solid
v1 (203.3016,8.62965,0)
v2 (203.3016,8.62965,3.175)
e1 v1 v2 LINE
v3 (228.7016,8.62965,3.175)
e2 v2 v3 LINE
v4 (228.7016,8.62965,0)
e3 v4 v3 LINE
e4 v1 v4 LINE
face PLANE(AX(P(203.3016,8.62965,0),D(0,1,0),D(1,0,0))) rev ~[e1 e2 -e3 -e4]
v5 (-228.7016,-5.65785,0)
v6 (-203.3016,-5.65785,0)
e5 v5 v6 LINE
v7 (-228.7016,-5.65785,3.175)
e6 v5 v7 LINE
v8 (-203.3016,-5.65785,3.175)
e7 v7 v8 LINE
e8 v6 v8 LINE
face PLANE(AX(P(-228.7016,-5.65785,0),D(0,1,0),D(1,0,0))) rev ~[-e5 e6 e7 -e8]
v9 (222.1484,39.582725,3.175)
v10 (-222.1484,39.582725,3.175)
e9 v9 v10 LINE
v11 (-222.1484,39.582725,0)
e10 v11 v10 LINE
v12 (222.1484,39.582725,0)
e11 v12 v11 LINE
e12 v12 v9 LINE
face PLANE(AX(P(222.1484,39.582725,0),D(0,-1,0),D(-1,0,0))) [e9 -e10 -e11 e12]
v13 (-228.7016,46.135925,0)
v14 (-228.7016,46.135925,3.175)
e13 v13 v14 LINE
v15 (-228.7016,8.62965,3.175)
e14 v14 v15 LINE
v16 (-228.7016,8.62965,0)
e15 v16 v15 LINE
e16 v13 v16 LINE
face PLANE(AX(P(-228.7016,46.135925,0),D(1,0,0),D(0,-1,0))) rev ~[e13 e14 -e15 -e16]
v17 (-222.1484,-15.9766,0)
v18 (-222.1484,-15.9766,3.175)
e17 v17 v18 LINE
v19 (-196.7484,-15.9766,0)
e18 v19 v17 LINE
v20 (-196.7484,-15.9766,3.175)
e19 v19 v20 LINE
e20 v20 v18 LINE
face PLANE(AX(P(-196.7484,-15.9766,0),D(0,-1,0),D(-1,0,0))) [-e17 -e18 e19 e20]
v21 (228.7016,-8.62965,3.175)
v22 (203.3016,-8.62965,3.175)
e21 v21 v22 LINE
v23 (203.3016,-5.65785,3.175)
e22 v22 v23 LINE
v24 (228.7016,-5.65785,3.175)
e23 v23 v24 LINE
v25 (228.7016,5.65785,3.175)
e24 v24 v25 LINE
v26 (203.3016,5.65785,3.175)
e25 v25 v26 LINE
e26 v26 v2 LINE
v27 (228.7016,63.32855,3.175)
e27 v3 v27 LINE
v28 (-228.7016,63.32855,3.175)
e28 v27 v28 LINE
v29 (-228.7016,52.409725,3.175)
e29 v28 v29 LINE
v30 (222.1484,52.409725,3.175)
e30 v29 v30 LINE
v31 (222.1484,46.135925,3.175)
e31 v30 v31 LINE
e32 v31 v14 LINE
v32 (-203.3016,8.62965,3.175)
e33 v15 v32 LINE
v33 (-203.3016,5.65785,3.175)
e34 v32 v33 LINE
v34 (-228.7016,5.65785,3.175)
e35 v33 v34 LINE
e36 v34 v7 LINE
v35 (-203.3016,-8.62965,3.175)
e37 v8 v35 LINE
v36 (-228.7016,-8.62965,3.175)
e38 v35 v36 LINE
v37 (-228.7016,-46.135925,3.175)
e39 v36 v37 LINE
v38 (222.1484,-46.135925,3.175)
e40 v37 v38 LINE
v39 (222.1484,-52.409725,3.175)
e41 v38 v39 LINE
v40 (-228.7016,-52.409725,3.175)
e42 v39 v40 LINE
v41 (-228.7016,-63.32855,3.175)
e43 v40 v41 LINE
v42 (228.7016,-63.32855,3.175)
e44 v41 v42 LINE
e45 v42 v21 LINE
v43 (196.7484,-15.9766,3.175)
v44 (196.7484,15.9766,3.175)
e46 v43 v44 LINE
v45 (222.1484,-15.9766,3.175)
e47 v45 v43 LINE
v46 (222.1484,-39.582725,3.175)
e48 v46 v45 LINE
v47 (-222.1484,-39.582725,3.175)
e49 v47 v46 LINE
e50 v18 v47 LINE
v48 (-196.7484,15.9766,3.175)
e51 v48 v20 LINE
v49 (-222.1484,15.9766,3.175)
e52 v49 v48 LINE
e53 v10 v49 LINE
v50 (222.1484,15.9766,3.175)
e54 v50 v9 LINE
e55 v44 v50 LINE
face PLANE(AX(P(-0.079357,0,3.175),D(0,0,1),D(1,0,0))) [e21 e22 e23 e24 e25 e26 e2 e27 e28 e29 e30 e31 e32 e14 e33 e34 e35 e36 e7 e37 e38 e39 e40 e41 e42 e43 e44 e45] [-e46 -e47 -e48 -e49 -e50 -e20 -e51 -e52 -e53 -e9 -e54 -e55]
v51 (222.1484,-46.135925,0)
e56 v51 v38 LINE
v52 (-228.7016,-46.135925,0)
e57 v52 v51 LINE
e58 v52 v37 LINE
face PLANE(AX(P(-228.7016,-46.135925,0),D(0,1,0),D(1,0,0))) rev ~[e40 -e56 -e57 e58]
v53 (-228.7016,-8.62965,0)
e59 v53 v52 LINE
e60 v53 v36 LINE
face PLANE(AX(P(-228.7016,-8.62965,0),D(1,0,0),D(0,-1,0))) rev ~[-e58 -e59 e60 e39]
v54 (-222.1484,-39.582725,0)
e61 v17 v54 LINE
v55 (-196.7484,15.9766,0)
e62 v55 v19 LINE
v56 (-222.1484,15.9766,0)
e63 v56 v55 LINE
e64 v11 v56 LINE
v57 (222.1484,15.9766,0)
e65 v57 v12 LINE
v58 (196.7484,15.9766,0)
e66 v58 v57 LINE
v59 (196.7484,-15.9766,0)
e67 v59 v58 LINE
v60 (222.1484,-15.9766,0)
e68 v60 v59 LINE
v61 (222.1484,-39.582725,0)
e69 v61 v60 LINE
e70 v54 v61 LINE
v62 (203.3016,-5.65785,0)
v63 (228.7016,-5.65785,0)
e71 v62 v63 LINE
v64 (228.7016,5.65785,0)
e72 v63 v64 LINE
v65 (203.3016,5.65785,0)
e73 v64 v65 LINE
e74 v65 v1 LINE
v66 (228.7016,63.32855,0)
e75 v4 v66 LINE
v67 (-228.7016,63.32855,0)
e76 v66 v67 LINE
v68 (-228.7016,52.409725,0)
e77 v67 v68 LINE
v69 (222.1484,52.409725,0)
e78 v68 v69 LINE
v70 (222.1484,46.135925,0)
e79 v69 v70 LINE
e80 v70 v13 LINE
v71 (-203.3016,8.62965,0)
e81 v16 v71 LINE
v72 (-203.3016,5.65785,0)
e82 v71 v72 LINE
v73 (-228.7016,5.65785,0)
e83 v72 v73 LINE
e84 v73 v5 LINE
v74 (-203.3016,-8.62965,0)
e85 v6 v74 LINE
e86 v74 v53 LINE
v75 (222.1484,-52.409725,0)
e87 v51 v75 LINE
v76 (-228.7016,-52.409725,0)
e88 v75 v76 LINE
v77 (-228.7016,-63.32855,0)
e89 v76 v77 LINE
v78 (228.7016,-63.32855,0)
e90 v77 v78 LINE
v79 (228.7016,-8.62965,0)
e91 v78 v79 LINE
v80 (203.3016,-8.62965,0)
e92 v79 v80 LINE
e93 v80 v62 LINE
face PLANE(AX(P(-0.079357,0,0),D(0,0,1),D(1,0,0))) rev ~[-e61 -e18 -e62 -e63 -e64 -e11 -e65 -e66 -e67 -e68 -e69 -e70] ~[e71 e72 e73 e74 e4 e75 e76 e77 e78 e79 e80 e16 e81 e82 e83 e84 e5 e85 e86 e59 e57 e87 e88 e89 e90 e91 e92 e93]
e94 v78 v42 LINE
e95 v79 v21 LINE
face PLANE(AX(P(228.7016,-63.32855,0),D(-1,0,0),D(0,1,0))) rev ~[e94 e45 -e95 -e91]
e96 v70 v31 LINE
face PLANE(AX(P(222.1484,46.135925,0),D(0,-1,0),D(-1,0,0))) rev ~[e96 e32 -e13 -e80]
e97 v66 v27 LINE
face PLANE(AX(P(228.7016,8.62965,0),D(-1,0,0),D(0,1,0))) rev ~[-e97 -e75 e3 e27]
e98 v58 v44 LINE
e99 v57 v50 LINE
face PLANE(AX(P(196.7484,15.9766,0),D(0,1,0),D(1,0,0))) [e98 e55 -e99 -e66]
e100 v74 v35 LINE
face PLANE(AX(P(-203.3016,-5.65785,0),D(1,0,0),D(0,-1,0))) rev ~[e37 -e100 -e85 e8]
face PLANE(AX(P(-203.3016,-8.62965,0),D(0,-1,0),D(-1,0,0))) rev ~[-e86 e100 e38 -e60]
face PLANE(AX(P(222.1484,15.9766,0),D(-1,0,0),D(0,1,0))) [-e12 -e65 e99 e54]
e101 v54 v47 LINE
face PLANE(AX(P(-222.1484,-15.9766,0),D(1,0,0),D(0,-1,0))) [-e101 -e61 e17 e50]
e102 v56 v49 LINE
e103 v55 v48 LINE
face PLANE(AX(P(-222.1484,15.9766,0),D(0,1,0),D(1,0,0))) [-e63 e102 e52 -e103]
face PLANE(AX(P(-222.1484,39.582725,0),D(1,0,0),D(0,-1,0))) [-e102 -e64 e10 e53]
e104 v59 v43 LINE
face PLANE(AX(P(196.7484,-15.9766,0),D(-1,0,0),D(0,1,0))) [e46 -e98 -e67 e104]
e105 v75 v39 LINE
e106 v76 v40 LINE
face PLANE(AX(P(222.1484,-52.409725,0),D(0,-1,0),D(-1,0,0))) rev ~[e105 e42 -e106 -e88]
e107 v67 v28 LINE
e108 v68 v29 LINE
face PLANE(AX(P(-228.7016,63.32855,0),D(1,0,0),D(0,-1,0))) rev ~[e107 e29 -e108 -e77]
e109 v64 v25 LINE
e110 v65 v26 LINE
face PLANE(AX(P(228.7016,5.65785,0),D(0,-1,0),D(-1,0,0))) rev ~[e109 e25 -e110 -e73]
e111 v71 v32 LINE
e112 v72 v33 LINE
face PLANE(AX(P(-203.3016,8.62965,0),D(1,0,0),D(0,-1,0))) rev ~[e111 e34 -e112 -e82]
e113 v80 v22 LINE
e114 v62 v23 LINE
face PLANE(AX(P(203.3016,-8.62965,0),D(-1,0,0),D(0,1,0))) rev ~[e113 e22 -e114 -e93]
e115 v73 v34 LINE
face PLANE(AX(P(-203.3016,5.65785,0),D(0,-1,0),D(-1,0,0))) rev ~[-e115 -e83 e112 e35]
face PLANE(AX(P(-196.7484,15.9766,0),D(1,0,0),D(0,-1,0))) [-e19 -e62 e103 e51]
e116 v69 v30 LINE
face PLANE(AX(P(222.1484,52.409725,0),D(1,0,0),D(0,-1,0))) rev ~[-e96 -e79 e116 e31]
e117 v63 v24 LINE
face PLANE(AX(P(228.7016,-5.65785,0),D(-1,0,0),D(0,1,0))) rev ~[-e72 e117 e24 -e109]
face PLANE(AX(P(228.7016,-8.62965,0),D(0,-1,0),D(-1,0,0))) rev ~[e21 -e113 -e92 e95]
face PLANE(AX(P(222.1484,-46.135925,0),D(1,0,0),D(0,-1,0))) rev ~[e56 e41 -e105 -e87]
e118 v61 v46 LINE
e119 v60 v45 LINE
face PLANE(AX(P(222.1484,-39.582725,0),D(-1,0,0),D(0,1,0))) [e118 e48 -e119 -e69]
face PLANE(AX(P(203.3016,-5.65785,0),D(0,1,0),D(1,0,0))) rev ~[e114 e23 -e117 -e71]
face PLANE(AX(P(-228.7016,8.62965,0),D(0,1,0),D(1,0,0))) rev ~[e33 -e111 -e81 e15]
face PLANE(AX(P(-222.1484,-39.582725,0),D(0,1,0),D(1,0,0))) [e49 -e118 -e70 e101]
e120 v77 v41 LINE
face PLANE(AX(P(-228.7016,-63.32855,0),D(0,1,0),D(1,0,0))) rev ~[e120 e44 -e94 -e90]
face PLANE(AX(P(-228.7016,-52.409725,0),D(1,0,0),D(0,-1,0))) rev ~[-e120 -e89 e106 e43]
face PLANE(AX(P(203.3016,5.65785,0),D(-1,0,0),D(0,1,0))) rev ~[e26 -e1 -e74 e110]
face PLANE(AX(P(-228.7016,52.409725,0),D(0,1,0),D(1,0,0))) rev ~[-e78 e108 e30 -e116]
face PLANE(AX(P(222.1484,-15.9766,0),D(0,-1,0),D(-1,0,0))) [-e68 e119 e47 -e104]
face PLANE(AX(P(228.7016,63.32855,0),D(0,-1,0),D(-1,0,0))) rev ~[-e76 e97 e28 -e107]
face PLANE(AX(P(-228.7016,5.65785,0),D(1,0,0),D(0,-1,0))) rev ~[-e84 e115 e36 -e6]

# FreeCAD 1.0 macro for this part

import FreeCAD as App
import Part
import Sketcher

V = App.Vector
Q = App.Units.Quantity

doc = App.newDocument("Part")
params = doc.addObject("Spreadsheet::Sheet", "Params")
for row, (alias, value) in enumerate([
    ("sketch1_width", "1 in"),
    ("sketch1_width2", "17.75 in"),
    ("sketch1_width3", "18.008 in"),
    ("sketch1_height", "0.247 in"),
    ("sketch1_height2", "0.117 in"),
    ("pad1_length", "0.125 in"),
], start=1):
    params.set(f"A{row}", alias)
    params.set(f"B{row}", "=" + value)
    params.setAlias(f"B{row}", alias)

body = doc.addObject("PartDesign::Body", "Body")

sketch1 = body.newObject("Sketcher::SketchObject", "Sketch")
sketch1.AttachmentSupport = (doc.getObject("XY_Plane"), [""])
sketch1.MapMode = "FlatFace"
sketch1.addGeometry(Part.LineSegment(V(-203.3, -8.6, 0), V(-228.7, -8.6, 0)), False)
sketch1.addGeometry(Part.LineSegment(V(-228.7, -8.6, 0), V(-228.7, -46.1, 0)), False)
sketch1.addGeometry(Part.LineSegment(V(-228.7, -46.1, 0), V(222.1, -46.1, 0)), False)
sketch1.addGeometry(Part.LineSegment(V(222.1, -46.1, 0), V(222.1, -52.4, 0)), False)
sketch1.addGeometry(Part.LineSegment(V(222.1, -52.4, 0), V(-228.7, -52.4, 0)), False)
sketch1.addGeometry(Part.LineSegment(V(-228.7, -52.4, 0), V(-228.7, -63.3, 0)), False)
sketch1.addGeometry(Part.LineSegment(V(-228.7, -63.3, 0), V(228.7, -63.3, 0)), False)
sketch1.addGeometry(Part.LineSegment(V(228.7, -63.3, 0), V(228.7, -8.6, 0)), False)
sketch1.addGeometry(Part.LineSegment(V(228.7, -8.6, 0), V(203.3, -8.6, 0)), False)
sketch1.addGeometry(Part.LineSegment(V(203.3, -8.6, 0), V(203.3, -5.7, 0)), False)
sketch1.addGeometry(Part.LineSegment(V(203.3, -5.7, 0), V(228.7, -5.7, 0)), False)
sketch1.addGeometry(Part.LineSegment(V(228.7, -5.7, 0), V(228.7, 5.7, 0)), False)
sketch1.addGeometry(Part.LineSegment(V(228.7, 5.7, 0), V(203.3, 5.7, 0)), False)
sketch1.addGeometry(Part.LineSegment(V(203.3, 5.7, 0), V(203.3, 8.6, 0)), False)
sketch1.addGeometry(Part.LineSegment(V(203.3, 8.6, 0), V(228.7, 8.6, 0)), False)
sketch1.addGeometry(Part.LineSegment(V(228.7, 8.6, 0), V(228.7, 63.3, 0)), False)
sketch1.addGeometry(Part.LineSegment(V(228.7, 63.3, 0), V(-228.7, 63.3, 0)), False)
sketch1.addGeometry(Part.LineSegment(V(-228.7, 63.3, 0), V(-228.7, 52.4, 0)), False)
sketch1.addGeometry(Part.LineSegment(V(-228.7, 52.4, 0), V(222.1, 52.4, 0)), False)
sketch1.addGeometry(Part.LineSegment(V(222.1, 52.4, 0), V(222.1, 46.1, 0)), False)
sketch1.addGeometry(Part.LineSegment(V(222.1, 46.1, 0), V(-228.7, 46.1, 0)), False)
sketch1.addGeometry(Part.LineSegment(V(-228.7, 46.1, 0), V(-228.7, 8.6, 0)), False)
sketch1.addGeometry(Part.LineSegment(V(-228.7, 8.6, 0), V(-203.3, 8.6, 0)), False)
sketch1.addGeometry(Part.LineSegment(V(-203.3, 8.6, 0), V(-203.3, 5.7, 0)), False)
sketch1.addGeometry(Part.LineSegment(V(-203.3, 5.7, 0), V(-228.7, 5.7, 0)), False)
sketch1.addGeometry(Part.LineSegment(V(-228.7, 5.7, 0), V(-228.7, -5.7, 0)), False)
sketch1.addGeometry(Part.LineSegment(V(-228.7, -5.7, 0), V(-203.3, -5.7, 0)), False)
sketch1.addGeometry(Part.LineSegment(V(-203.3, -5.7, 0), V(-203.3, -8.6, 0)), False)
sketch1.addGeometry(Part.LineSegment(V(222.1, -16, 0), V(222.1, -39.6, 0)), False)
sketch1.addGeometry(Part.LineSegment(V(222.1, -39.6, 0), V(-222.1, -39.6, 0)), False)
sketch1.addGeometry(Part.LineSegment(V(-222.1, -39.6, 0), V(-222.1, -16, 0)), False)
sketch1.addGeometry(Part.LineSegment(V(-222.1, -16, 0), V(-196.7, -16, 0)), False)
sketch1.addGeometry(Part.LineSegment(V(-196.7, -16, 0), V(-196.7, 16, 0)), False)
sketch1.addGeometry(Part.LineSegment(V(-196.7, 16, 0), V(-222.1, 16, 0)), False)
sketch1.addGeometry(Part.LineSegment(V(-222.1, 16, 0), V(-222.1, 39.6, 0)), False)
sketch1.addGeometry(Part.LineSegment(V(-222.1, 39.6, 0), V(222.1, 39.6, 0)), False)
sketch1.addGeometry(Part.LineSegment(V(222.1, 39.6, 0), V(222.1, 16, 0)), False)
sketch1.addGeometry(Part.LineSegment(V(222.1, 16, 0), V(196.7, 16, 0)), False)
sketch1.addGeometry(Part.LineSegment(V(196.7, 16, 0), V(196.7, -16, 0)), False)
sketch1.addGeometry(Part.LineSegment(V(196.7, -16, 0), V(222.1, -16, 0)), False)
sketch1.addConstraint(Sketcher.Constraint("Coincident", 0, 2, 1, 1))
sketch1.addConstraint(Sketcher.Constraint("Coincident", 1, 2, 2, 1))
sketch1.addConstraint(Sketcher.Constraint("Coincident", 2, 2, 3, 1))
sketch1.addConstraint(Sketcher.Constraint("Coincident", 3, 2, 4, 1))
sketch1.addConstraint(Sketcher.Constraint("Coincident", 4, 2, 5, 1))
sketch1.addConstraint(Sketcher.Constraint("Coincident", 5, 2, 6, 1))
sketch1.addConstraint(Sketcher.Constraint("Coincident", 6, 2, 7, 1))
sketch1.addConstraint(Sketcher.Constraint("Coincident", 7, 2, 8, 1))
sketch1.addConstraint(Sketcher.Constraint("Coincident", 8, 2, 9, 1))
sketch1.addConstraint(Sketcher.Constraint("Coincident", 9, 2, 10, 1))
sketch1.addConstraint(Sketcher.Constraint("Coincident", 10, 2, 11, 1))
sketch1.addConstraint(Sketcher.Constraint("Coincident", 11, 2, 12, 1))
sketch1.addConstraint(Sketcher.Constraint("Coincident", 12, 2, 13, 1))
sketch1.addConstraint(Sketcher.Constraint("Coincident", 13, 2, 14, 1))
sketch1.addConstraint(Sketcher.Constraint("Coincident", 14, 2, 15, 1))
sketch1.addConstraint(Sketcher.Constraint("Coincident", 15, 2, 16, 1))
sketch1.addConstraint(Sketcher.Constraint("Coincident", 16, 2, 17, 1))
sketch1.addConstraint(Sketcher.Constraint("Coincident", 17, 2, 18, 1))
sketch1.addConstraint(Sketcher.Constraint("Coincident", 18, 2, 19, 1))
sketch1.addConstraint(Sketcher.Constraint("Coincident", 19, 2, 20, 1))
sketch1.addConstraint(Sketcher.Constraint("Coincident", 20, 2, 21, 1))
sketch1.addConstraint(Sketcher.Constraint("Coincident", 21, 2, 22, 1))
sketch1.addConstraint(Sketcher.Constraint("Coincident", 22, 2, 23, 1))
sketch1.addConstraint(Sketcher.Constraint("Coincident", 23, 2, 24, 1))
sketch1.addConstraint(Sketcher.Constraint("Coincident", 24, 2, 25, 1))
sketch1.addConstraint(Sketcher.Constraint("Coincident", 25, 2, 26, 1))
sketch1.addConstraint(Sketcher.Constraint("Coincident", 26, 2, 27, 1))
sketch1.addConstraint(Sketcher.Constraint("Coincident", 27, 2, 0, 1))
sketch1.addConstraint(Sketcher.Constraint("Coincident", 28, 2, 29, 1))
sketch1.addConstraint(Sketcher.Constraint("Coincident", 29, 2, 30, 1))
sketch1.addConstraint(Sketcher.Constraint("Coincident", 30, 2, 31, 1))
sketch1.addConstraint(Sketcher.Constraint("Coincident", 31, 2, 32, 1))
sketch1.addConstraint(Sketcher.Constraint("Coincident", 32, 2, 33, 1))
sketch1.addConstraint(Sketcher.Constraint("Coincident", 33, 2, 34, 1))
sketch1.addConstraint(Sketcher.Constraint("Coincident", 34, 2, 35, 1))
sketch1.addConstraint(Sketcher.Constraint("Coincident", 35, 2, 36, 1))
sketch1.addConstraint(Sketcher.Constraint("Coincident", 36, 2, 37, 1))
sketch1.addConstraint(Sketcher.Constraint("Coincident", 37, 2, 38, 1))
sketch1.addConstraint(Sketcher.Constraint("Coincident", 38, 2, 39, 1))
sketch1.addConstraint(Sketcher.Constraint("Coincident", 39, 2, 28, 1))
sketch1.addConstraint(Sketcher.Constraint("Horizontal", 0))
sketch1.addConstraint(Sketcher.Constraint("Vertical", 1))
sketch1.addConstraint(Sketcher.Constraint("Horizontal", 2))
sketch1.addConstraint(Sketcher.Constraint("Vertical", 3))
sketch1.addConstraint(Sketcher.Constraint("Horizontal", 4))
sketch1.addConstraint(Sketcher.Constraint("Vertical", 5))
sketch1.addConstraint(Sketcher.Constraint("Horizontal", 6))
sketch1.addConstraint(Sketcher.Constraint("Vertical", 7))
sketch1.addConstraint(Sketcher.Constraint("Horizontal", 8))
sketch1.addConstraint(Sketcher.Constraint("Vertical", 9))
sketch1.addConstraint(Sketcher.Constraint("Horizontal", 10))
sketch1.addConstraint(Sketcher.Constraint("Vertical", 11))
sketch1.addConstraint(Sketcher.Constraint("Horizontal", 12))
sketch1.addConstraint(Sketcher.Constraint("Vertical", 13))
sketch1.addConstraint(Sketcher.Constraint("Horizontal", 14))
sketch1.addConstraint(Sketcher.Constraint("Vertical", 15))
sketch1.addConstraint(Sketcher.Constraint("Horizontal", 16))
sketch1.addConstraint(Sketcher.Constraint("Vertical", 17))
sketch1.addConstraint(Sketcher.Constraint("Horizontal", 18))
sketch1.addConstraint(Sketcher.Constraint("Vertical", 19))
sketch1.addConstraint(Sketcher.Constraint("Horizontal", 20))
sketch1.addConstraint(Sketcher.Constraint("Vertical", 21))
sketch1.addConstraint(Sketcher.Constraint("Horizontal", 22))
sketch1.addConstraint(Sketcher.Constraint("Vertical", 23))
sketch1.addConstraint(Sketcher.Constraint("Horizontal", 24))
sketch1.addConstraint(Sketcher.Constraint("Vertical", 25))
sketch1.addConstraint(Sketcher.Constraint("Horizontal", 26))
sketch1.addConstraint(Sketcher.Constraint("Vertical", 27))
sketch1.addConstraint(Sketcher.Constraint("Vertical", 28))
sketch1.addConstraint(Sketcher.Constraint("Horizontal", 29))
sketch1.addConstraint(Sketcher.Constraint("Vertical", 30))
sketch1.addConstraint(Sketcher.Constraint("Horizontal", 31))
sketch1.addConstraint(Sketcher.Constraint("Vertical", 32))
sketch1.addConstraint(Sketcher.Constraint("Horizontal", 33))
sketch1.addConstraint(Sketcher.Constraint("Vertical", 34))
sketch1.addConstraint(Sketcher.Constraint("Horizontal", 35))
sketch1.addConstraint(Sketcher.Constraint("Vertical", 36))
sketch1.addConstraint(Sketcher.Constraint("Horizontal", 37))
sketch1.addConstraint(Sketcher.Constraint("Vertical", 38))
sketch1.addConstraint(Sketcher.Constraint("Horizontal", 39))
sketch1.addConstraint(Sketcher.Constraint("Symmetric", 0, 2, 14, 2, -1, 1))
sketch1.addConstraint(Sketcher.Constraint("Symmetric", 5, 2, 15, 2, -1, 1))
sketch1.addConstraint(Sketcher.Constraint("Symmetric", 7, 2, 21, 2, -1, 1))
sketch1.addConstraint(Sketcher.Constraint("Symmetric", 9, 2, 23, 2, -1, 1))
sketch1.addConstraint(Sketcher.Constraint("Symmetric", 11, 2, 25, 2, -1, 1))
sketch1.addConstraint(Sketcher.Constraint("Symmetric", 28, 2, 34, 2, -1, 1))
sketch1.addConstraint(Sketcher.Constraint("Symmetric", 30, 2, 36, 2, -1, 1))
sketch1.addConstraint(Sketcher.Constraint("Symmetric", 32, 2, 38, 2, -1, 1))
sketch1.addConstraint(Sketcher.Constraint("Symmetric", 0, 2, 7, 2, -2))
sketch1.addConstraint(Sketcher.Constraint("Symmetric", 12, 2, 23, 2, -2))
sketch1.addConstraint(Sketcher.Constraint("Symmetric", 33, 2, 36, 2, -2))
sketch1.addConstraint(Sketcher.Constraint("Symmetric", 4, 2, 17, 2, -1))
sketch1.addConstraint(Sketcher.Constraint("Symmetric", 2, 2, 19, 2, -1))
sketch1.addConstraint(Sketcher.Constraint("Vertical", 7, 2, 10, 2))
sketch1.addConstraint(Sketcher.Constraint("Vertical", 23, 2, 26, 2))
sketch1.addConstraint(Sketcher.Constraint("Vertical", 19, 2, 28, 2))
sketch1.addConstraint(Sketcher.Constraint("Equal", 26, 31))
sketch1.addConstraint(Sketcher.Constraint("DistanceX", 0, 2, 0, 1, Q("1 in")))
sketch1.addConstraint(Sketcher.Constraint("DistanceX", 2, 1, 2, 2, Q("17.75 in")))
sketch1.addConstraint(Sketcher.Constraint("DistanceX", 6, 1, 6, 2, Q("18.008 in")))
sketch1.addConstraint(Sketcher.Constraint("DistanceY", 3, 2, 3, 1, Q("0.247 in")))
sketch1.addConstraint(Sketcher.Constraint("DistanceY", 9, 1, 9, 2, Q("0.117 in")))
sketch1.addConstraint(Sketcher.Constraint("DistanceY", 32, 1, 32, 2, Q("1.258 in")))
sketch1.addConstraint(Sketcher.Constraint("DistanceY", 7, 1, 7, 2, Q("2.1535 in")))
sketch1.addConstraint(Sketcher.Constraint("DistanceY", 11, 1, 11, 2, Q("0.4455 in")))
sketch1.addConstraint(Sketcher.Constraint("DistanceY", 2, 2, 28, 2, Q("0.258 in")))
sketch1.addConstraint(Sketcher.Constraint("DistanceY", 1, 2, 1, 1, Q("37.506275 mm")))
sketch1.setExpression("Constraints[97]", "Params.sketch1_width")
sketch1.setExpression("Constraints[98]", "Params.sketch1_width2")
sketch1.setExpression("Constraints[99]", "Params.sketch1_width3")
sketch1.setExpression("Constraints[100]", "Params.sketch1_height")
sketch1.setExpression("Constraints[101]", "Params.sketch1_height2")
pad1 = body.newObject("PartDesign::Pad", "Pad")
pad1.Profile = sketch1
pad1.setExpression("Length", "Params.pad1_length")

doc.recompute()
